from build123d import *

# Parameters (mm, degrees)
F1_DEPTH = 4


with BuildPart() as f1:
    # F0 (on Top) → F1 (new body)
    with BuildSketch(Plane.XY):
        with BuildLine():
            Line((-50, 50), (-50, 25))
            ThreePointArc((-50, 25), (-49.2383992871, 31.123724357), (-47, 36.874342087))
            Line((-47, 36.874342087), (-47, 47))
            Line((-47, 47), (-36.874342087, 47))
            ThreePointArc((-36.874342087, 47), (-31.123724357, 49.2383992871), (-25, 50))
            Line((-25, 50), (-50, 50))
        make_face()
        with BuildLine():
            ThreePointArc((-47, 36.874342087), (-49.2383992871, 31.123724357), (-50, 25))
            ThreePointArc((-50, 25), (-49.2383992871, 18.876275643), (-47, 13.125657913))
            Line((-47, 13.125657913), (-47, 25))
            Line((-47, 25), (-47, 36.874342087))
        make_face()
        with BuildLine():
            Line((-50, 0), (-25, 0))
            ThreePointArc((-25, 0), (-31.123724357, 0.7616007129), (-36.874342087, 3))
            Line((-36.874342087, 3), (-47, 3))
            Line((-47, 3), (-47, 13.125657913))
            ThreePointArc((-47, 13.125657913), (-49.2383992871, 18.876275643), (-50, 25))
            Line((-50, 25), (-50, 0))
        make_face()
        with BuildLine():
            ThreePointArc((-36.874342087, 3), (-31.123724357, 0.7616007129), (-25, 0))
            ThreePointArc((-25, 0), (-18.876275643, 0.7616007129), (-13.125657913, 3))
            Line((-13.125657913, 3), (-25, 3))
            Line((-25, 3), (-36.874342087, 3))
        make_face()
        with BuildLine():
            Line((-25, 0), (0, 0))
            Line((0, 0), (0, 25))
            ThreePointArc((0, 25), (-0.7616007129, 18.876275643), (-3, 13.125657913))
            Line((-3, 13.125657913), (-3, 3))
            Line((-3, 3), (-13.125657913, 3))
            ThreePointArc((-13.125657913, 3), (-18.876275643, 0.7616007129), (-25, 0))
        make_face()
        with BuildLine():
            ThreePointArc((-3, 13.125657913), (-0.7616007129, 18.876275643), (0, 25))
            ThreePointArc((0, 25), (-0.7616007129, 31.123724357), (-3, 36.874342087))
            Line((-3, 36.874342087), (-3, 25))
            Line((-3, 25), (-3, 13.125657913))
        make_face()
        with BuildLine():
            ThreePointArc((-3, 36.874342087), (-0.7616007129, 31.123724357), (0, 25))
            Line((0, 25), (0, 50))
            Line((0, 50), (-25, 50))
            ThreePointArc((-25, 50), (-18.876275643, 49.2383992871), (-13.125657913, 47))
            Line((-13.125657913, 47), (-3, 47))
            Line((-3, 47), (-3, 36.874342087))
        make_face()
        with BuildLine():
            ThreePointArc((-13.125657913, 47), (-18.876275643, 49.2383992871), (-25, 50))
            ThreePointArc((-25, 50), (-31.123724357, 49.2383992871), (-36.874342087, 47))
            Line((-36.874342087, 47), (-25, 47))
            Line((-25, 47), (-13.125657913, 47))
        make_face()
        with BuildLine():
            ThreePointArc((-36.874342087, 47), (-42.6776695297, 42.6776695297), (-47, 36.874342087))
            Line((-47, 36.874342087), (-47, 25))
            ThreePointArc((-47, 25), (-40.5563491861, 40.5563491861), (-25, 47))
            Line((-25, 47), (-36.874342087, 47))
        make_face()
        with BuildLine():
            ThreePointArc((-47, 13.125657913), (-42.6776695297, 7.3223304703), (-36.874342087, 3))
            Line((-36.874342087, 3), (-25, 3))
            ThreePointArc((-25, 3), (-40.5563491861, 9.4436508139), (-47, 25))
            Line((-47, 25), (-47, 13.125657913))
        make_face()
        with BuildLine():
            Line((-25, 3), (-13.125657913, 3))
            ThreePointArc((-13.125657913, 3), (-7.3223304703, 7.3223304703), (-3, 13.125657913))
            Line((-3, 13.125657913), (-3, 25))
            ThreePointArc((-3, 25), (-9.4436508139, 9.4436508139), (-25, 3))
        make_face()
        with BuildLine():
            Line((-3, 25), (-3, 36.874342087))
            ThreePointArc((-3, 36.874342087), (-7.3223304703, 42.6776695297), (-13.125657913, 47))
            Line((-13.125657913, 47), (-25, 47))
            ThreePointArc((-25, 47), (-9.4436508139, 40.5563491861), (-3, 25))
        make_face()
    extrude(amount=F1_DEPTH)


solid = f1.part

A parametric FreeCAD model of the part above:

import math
import FreeCAD as App
import Part
import Sketcher


def add_polygon(sketch, points):
    """Adds a closed chain of lines whose ends are joined by coincident constraints."""
    first, n = sketch.GeometryCount, len(points)
    for a, b in zip(points, points[1:] + points[:1]):
        sketch.addGeometry(Part.LineSegment(App.Vector(*a, 0), App.Vector(*b, 0)), False)
    for i in range(n):
        sketch.addConstraint(Sketcher.Constraint("Coincident", first + i, 2, first + (i + 1) % n, 1))

doc = App.newDocument("Part")
body = doc.addObject("PartDesign::Body", "Body")

sketch1 = body.newObject("Sketcher::SketchObject", "Sketch")
sketch1.AttachmentSupport = (doc.getObject("XY_Plane"), [""])
sketch1.MapMode = "FlatFace"
add_polygon(sketch1, [(0, 50), (-50, 50), (-50, 0), (0, 0)])
sketch1.addGeometry(Part.LineSegment(App.Vector(-47, 47, 0), App.Vector(-37, 47, 0)), False)
sketch1.addGeometry(Part.ArcOfCircle(Part.Circle(App.Vector(-25, 25, 0), App.Vector(0, 0, 1), 25), math.radians(118), math.radians(152)), False)
sketch1.addGeometry(Part.LineSegment(App.Vector(-47, 37, 0), App.Vector(-47, 47, 0)), False)
sketch1.addGeometry(Part.LineSegment(App.Vector(-13, 47, 0), App.Vector(-3, 47, 0)), False)
sketch1.addGeometry(Part.LineSegment(App.Vector(-3, 47, 0), App.Vector(-3, 37, 0)), False)
sketch1.addGeometry(Part.ArcOfCircle(Part.Circle(App.Vector(-25, 25, 0), App.Vector(0, 0, 1), 25), math.radians(28), math.radians(62)), False)
sketch1.addGeometry(Part.ArcOfCircle(Part.Circle(App.Vector(-25, 25, 0), App.Vector(0, 0, 1), 22), math.radians(-90), math.radians(0)), False)
sketch1.addGeometry(Part.ArcOfCircle(Part.Circle(App.Vector(-25, 25, 0), App.Vector(0, 0, 1), 22), math.radians(180), math.radians(270)), False)
sketch1.addGeometry(Part.ArcOfCircle(Part.Circle(App.Vector(-25, 25, 0), App.Vector(0, 0, 1), 22), math.radians(90), math.radians(180)), False)
sketch1.addGeometry(Part.ArcOfCircle(Part.Circle(App.Vector(-25, 25, 0), App.Vector(0, 0, 1), 22), math.radians(0), math.radians(90)), False)
sketch1.addGeometry(Part.LineSegment(App.Vector(-3, 13, 0), App.Vector(-3, 3, 0)), False)
sketch1.addGeometry(Part.LineSegment(App.Vector(-3, 3, 0), App.Vector(-13, 3, 0)), False)
sketch1.addGeometry(Part.ArcOfCircle(Part.Circle(App.Vector(-25, 25, 0), App.Vector(0, 0, 1), 25), math.radians(-62), math.radians(-28)), False)
sketch1.addGeometry(Part.LineSegment(App.Vector(-37, 3, 0), App.Vector(-47, 3, 0)), False)
sketch1.addGeometry(Part.LineSegment(App.Vector(-47, 3, 0), App.Vector(-47, 13, 0)), False)
sketch1.addGeometry(Part.ArcOfCircle(Part.Circle(App.Vector(-25, 25, 0), App.Vector(0, 0, 1), 25), math.radians(-152), math.radians(-118)), False)
sketch1.addConstraint([
    Sketcher.Constraint("Coincident", 4, 2, 5, 1),
    Sketcher.Constraint("Coincident", 5, 2, 6, 1),
    Sketcher.Constraint("Coincident", 6, 2, 4, 1),
    Sketcher.Constraint("Coincident", 7, 2, 8, 1),
    Sketcher.Constraint("Coincident", 8, 2, 9, 1),
    Sketcher.Constraint("Coincident", 9, 2, 7, 1),
    Sketcher.Constraint("Tangent", 10, 1, 11, 2),
    Sketcher.Constraint("Tangent", 11, 1, 12, 2),
    Sketcher.Constraint("Tangent", 12, 1, 13, 2),
    Sketcher.Constraint("Tangent", 13, 1, 10, 2),
    Sketcher.Constraint("Coincident", 14, 2, 15, 1),
    Sketcher.Constraint("Coincident", 15, 2, 16, 1),
    Sketcher.Constraint("Coincident", 16, 2, 14, 1),
    Sketcher.Constraint("Coincident", 17, 2, 18, 1),
    Sketcher.Constraint("Coincident", 18, 2, 19, 1),
    Sketcher.Constraint("Coincident", 19, 2, 17, 1),
    Sketcher.Constraint("Horizontal", 0),
    Sketcher.Constraint("Vertical", 1),
    Sketcher.Constraint("Horizontal", 2),
    Sketcher.Constraint("Vertical", 3),
    Sketcher.Constraint("Horizontal", 4),
    Sketcher.Constraint("Vertical", 6),
    Sketcher.Constraint("Horizontal", 7),
    Sketcher.Constraint("Vertical", 8),
    Sketcher.Constraint("Vertical", 14),
    Sketcher.Constraint("Horizontal", 15),
    Sketcher.Constraint("Horizontal", 17),
    Sketcher.Constraint("Vertical", 18),
    Sketcher.Constraint("Coincident", 2, 2, -1, 1),
    Sketcher.Constraint("Coincident", 9, 3, 5, 3),
    Sketcher.Constraint("Coincident", 10, 3, 5, 3),
    Sketcher.Constraint("Coincident", 16, 3, 5, 3),
    Sketcher.Constraint("Coincident", 19, 3, 5, 3),
    Sketcher.Constraint("Equal", 5, 9),
    Sketcher.Constraint("Equal", 10, 11),
    Sketcher.Constraint("Equal", 9, 16),
    Sketcher.Constraint("Equal", 16, 19),
    Sketcher.Constraint("Horizontal", 6, 2, 7, 2),
    Sketcher.Constraint("Horizontal", 5, 2, 8, 2),
    Sketcher.Constraint("Horizontal", 19, 3, 11, 1),
    Sketcher.Constraint("Horizontal", 9, 2, 12, 1),
    Sketcher.Constraint("Horizontal", 11, 1, 13, 1),
    Sketcher.Constraint("Horizontal", 10, 1, 14, 2),
    Sketcher.Constraint("Horizontal", 15, 2, 17, 2),
    Sketcher.Constraint("Horizontal", 16, 2, 18, 2),
    Sketcher.Constraint("Vertical", 19, 3, 10, 1),
    Sketcher.Constraint("Vertical", 6, 2, 11, 1),
    Sketcher.Constraint("Vertical", 10, 1, 12, 1),
    Sketcher.Constraint("Vertical", 13, 1, 14, 2),
    Sketcher.Constraint("Equal", 2, 1),
    Sketcher.Constraint("Radius", 5, 25.0),
    Sketcher.Constraint("Radius", 10, 22.0),
    Sketcher.Constraint("DistanceX", 0, 2, 0, 1, 50.0),
    Sketcher.Constraint("DistanceX", 5, 3, -1, 1, 25.0),
    Sketcher.Constraint("DistanceY", -1, 1, 5, 3, 25.0),
])
pad1 = body.newObject("PartDesign::Pad", "Pad")
pad1.Profile = sketch1
pad1.Length = 4

doc.recompute()
